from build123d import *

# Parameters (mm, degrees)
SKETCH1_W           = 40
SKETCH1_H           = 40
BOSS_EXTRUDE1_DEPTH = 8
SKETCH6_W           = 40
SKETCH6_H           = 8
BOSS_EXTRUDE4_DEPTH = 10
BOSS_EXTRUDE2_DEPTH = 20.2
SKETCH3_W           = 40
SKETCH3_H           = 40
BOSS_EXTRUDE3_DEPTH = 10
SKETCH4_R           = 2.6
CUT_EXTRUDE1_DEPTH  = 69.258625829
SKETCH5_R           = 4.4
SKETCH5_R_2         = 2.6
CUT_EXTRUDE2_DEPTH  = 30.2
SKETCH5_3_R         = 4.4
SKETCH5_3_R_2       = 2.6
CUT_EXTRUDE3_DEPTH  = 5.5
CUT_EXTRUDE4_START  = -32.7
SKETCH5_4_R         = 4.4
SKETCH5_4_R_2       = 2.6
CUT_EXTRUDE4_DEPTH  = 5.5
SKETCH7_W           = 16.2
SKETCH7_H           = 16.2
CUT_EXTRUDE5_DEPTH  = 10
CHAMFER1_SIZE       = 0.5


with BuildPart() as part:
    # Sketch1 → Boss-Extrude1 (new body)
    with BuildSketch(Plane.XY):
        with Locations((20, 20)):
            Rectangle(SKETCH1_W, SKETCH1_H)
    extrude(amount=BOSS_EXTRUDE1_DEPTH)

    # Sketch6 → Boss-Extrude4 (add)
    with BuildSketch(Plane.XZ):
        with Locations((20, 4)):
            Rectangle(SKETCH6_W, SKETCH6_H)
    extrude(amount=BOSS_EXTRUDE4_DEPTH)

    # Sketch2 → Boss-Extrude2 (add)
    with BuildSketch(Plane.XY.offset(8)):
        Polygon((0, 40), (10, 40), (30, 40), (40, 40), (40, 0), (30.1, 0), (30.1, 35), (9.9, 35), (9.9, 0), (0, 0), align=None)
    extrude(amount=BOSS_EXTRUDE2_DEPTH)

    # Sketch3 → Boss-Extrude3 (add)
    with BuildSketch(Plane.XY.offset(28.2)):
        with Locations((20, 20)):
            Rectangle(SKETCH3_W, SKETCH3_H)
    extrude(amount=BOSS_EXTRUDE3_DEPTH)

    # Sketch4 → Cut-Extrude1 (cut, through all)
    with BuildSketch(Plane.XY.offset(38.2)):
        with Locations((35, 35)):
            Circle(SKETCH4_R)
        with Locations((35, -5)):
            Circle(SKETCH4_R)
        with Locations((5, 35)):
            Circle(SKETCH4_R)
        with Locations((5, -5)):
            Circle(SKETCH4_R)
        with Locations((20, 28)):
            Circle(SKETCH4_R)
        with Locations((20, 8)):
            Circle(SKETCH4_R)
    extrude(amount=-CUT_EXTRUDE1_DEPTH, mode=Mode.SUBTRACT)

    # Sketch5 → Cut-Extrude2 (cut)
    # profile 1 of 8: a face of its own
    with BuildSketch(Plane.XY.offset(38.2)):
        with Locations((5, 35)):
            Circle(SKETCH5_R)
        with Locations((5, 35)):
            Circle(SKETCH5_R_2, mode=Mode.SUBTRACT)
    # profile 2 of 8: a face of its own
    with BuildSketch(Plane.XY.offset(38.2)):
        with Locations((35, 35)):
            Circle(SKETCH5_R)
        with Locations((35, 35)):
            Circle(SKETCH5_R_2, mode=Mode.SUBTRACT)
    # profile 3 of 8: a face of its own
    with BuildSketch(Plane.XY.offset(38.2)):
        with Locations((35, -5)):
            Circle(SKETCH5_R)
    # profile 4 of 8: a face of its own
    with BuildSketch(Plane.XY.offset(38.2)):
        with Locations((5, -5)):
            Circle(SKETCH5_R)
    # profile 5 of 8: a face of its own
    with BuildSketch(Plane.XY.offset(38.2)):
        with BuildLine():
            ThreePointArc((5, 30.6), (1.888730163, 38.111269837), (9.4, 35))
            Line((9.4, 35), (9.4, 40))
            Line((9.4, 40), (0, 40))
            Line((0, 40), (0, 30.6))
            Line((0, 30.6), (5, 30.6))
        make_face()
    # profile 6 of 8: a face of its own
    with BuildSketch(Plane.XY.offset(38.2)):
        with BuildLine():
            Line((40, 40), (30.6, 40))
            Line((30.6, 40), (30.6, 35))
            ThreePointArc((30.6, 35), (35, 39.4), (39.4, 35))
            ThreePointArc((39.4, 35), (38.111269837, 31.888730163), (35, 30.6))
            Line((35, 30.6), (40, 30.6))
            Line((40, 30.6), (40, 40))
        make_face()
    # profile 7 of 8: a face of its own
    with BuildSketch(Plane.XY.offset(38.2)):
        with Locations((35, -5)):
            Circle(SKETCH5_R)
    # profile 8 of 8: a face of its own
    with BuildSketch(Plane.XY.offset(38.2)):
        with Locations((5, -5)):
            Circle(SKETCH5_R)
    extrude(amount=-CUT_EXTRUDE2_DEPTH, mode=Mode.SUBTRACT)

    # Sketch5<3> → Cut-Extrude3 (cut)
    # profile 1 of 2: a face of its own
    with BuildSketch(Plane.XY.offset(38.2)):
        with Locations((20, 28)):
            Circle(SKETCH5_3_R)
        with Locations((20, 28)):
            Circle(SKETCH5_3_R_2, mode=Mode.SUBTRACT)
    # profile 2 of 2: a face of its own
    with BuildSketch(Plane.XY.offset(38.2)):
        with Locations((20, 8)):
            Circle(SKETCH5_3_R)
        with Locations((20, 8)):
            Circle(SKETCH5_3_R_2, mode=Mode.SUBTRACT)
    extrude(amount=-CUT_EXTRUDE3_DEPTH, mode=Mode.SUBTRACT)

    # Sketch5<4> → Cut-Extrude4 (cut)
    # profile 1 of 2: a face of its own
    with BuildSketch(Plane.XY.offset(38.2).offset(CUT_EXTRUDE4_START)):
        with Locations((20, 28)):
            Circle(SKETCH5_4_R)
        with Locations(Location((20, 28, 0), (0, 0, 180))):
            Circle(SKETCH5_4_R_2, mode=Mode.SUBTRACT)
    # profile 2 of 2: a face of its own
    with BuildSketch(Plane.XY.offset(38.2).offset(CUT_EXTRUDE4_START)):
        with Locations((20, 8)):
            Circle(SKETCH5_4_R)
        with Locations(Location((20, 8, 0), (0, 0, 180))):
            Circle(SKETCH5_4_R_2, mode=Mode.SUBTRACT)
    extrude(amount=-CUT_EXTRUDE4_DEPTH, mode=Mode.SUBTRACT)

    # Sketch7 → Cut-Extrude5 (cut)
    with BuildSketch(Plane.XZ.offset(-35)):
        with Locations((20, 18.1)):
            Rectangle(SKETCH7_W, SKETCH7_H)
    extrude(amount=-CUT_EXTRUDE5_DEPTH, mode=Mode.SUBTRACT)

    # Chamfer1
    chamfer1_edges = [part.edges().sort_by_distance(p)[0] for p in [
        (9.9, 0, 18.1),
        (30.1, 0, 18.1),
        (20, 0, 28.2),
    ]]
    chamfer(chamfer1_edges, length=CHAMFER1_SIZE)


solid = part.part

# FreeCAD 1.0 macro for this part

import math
import FreeCAD as App
import Part
import Sketcher
from FreeCAD import Vector


def edges_at(feature, points):
    """Names of the edges that pass closest to the given points."""
    edges = feature.Shape.Edges
    near = lambda p: min(range(len(edges)), key=lambda i: edges[i].distToShape(Part.Vertex(*p))[0])
    return sorted({f"Edge{near(p) + 1}" for p in points})

doc = App.newDocument("Part")
params = doc.addObject("Spreadsheet::Sheet", "Params")
for row, (alias, value) in enumerate([
    ("sketch1_width", "40 mm"),
    ("pad1_length", "8 mm"),
    ("sketch2_width", "40 mm"),
    ("sketch2_height", "8 mm"),
    ("pad2_length", "10 mm"),
    ("sketch3_width", "40 mm"),
    ("sketch3_height", "35 mm"),
    ("sketch3_width2", "9.9 mm"),
    ("pad3_length", "20.2 mm"),
    ("sketch4_width", "40 mm"),
    ("pad4_length", "10 mm"),
    ("sketch5_diameter", "5.2 mm"),
    ("sketch6_diameter", "5.2 mm"),
    ("sketch6_diameter2", "8.8 mm"),
    ("sketch6_width", "5 mm"),
    ("pocket2_length", "30.2 mm"),
    ("sketch7_diameter", "8.8 mm"),
    ("sketch7_diameter2", "5.2 mm"),
    ("pocket3_length", "5.5 mm"),
    ("sketch8_diameter", "8.8 mm"),
    ("sketch8_diameter2", "5.2 mm"),
    ("pocket4_length", "5.5 mm"),
    ("sketch9_width", "16.2 mm"),
    ("pocket5_length", "10 mm"),
    ("chamfer_size", "0.5 mm"),
], start=1):
    params.set(f"A{row}", alias)
    params.set(f"B{row}", "=" + value)
    params.setAlias(f"B{row}", alias)

body = doc.addObject("PartDesign::Body", "Body")

# Sketch on XY plane
sketch1 = doc.addObject("Sketcher::SketchObject", "Sketch")
body.addObject(sketch1)
sketch1.AttachmentSupport = (doc.XY_Plane, [""])
sketch1.MapMode = "FlatFace"
sketch1.addGeometry(Part.LineSegment(Vector(0, 40, 0), Vector(0, 0, 0)), False)
sketch1.addGeometry(Part.LineSegment(Vector(0, 0, 0), Vector(40, 0, 0)), False)
sketch1.addGeometry(Part.LineSegment(Vector(40, 0, 0), Vector(40, 40, 0)), False)
sketch1.addGeometry(Part.LineSegment(Vector(40, 40, 0), Vector(0, 40, 0)), False)
sketch1.addConstraint(Sketcher.Constraint("Coincident", 0, 2, 1, 1))
sketch1.addConstraint(Sketcher.Constraint("Coincident", 1, 2, 2, 1))
sketch1.addConstraint(Sketcher.Constraint("Coincident", 2, 2, 3, 1))
sketch1.addConstraint(Sketcher.Constraint("Coincident", 3, 2, 0, 1))
sketch1.addConstraint(Sketcher.Constraint("Vertical", 0))
sketch1.addConstraint(Sketcher.Constraint("Horizontal", 1))
sketch1.addConstraint(Sketcher.Constraint("Vertical", 2))
sketch1.addConstraint(Sketcher.Constraint("Horizontal", 3))
sketch1.addConstraint(Sketcher.Constraint("Coincident", 0, 2, -1, 1))
sketch1.addConstraint(Sketcher.Constraint("Equal", 3, 0))
sketch1.addConstraint(Sketcher.Constraint("DistanceX", 1, 1, 1, 2, 40.0))
sketch1.setExpression("Constraints[10]", "Params.sketch1_width")
pad1 = doc.addObject("PartDesign::Pad", "Pad")
body.addObject(pad1)
pad1.Profile = sketch1
pad1.setExpression("Length", "Params.pad1_length")

# Sketch on XZ plane
sketch2 = doc.addObject("Sketcher::SketchObject", "Sketch001")
body.addObject(sketch2)
sketch2.AttachmentSupport = (doc.XZ_Plane, [""])
sketch2.MapMode = "FlatFace"
sketch2.addGeometry(Part.LineSegment(Vector(0, 8, 0), Vector(0, 0, 0)), False)
sketch2.addGeometry(Part.LineSegment(Vector(0, 0, 0), Vector(40, 0, 0)), False)
sketch2.addGeometry(Part.LineSegment(Vector(40, 0, 0), Vector(40, 8, 0)), False)
sketch2.addGeometry(Part.LineSegment(Vector(40, 8, 0), Vector(0, 8, 0)), False)
sketch2.addConstraint(Sketcher.Constraint("Coincident", 0, 2, 1, 1))
sketch2.addConstraint(Sketcher.Constraint("Coincident", 1, 2, 2, 1))
sketch2.addConstraint(Sketcher.Constraint("Coincident", 2, 2, 3, 1))
sketch2.addConstraint(Sketcher.Constraint("Coincident", 3, 2, 0, 1))
sketch2.addConstraint(Sketcher.Constraint("Vertical", 0))
sketch2.addConstraint(Sketcher.Constraint("Horizontal", 1))
sketch2.addConstraint(Sketcher.Constraint("Vertical", 2))
sketch2.addConstraint(Sketcher.Constraint("Horizontal", 3))
sketch2.addConstraint(Sketcher.Constraint("Coincident", 0, 2, -1, 1))
sketch2.addConstraint(Sketcher.Constraint("DistanceX", 1, 1, 1, 2, 40.0))
sketch2.addConstraint(Sketcher.Constraint("DistanceY", 0, 2, 0, 1, 8.0))
sketch2.setExpression("Constraints[9]", "Params.sketch2_width")
sketch2.setExpression("Constraints[10]", "Params.sketch2_height")
pad2 = doc.addObject("PartDesign::Pad", "Pad001")
body.addObject(pad2)
pad2.Profile = sketch2
pad2.setExpression("Length", "Params.pad2_length")

# Sketch on XY plane
sketch3 = doc.addObject("Sketcher::SketchObject", "Sketch002")
body.addObject(sketch3)
sketch3.AttachmentSupport = (doc.XY_Plane, [""])
sketch3.MapMode = "FlatFace"
sketch3.AttachmentOffset = App.Placement(Vector(0, 0, 8), App.Rotation())
sketch3.addGeometry(Part.LineSegment(Vector(40, 40, 0), Vector(0, 40, 0)), False)
sketch3.addGeometry(Part.LineSegment(Vector(0, 40, 0), Vector(0, 0, 0)), False)
sketch3.addGeometry(Part.LineSegment(Vector(0, 0, 0), Vector(10, 0, 0)), False)
sketch3.addGeometry(Part.LineSegment(Vector(10, 0, 0), Vector(10, 35, 0)), False)
sketch3.addGeometry(Part.LineSegment(Vector(10, 35, 0), Vector(30, 35, 0)), False)
sketch3.addGeometry(Part.LineSegment(Vector(30, 35, 0), Vector(30, 0, 0)), False)
sketch3.addGeometry(Part.LineSegment(Vector(30, 0, 0), Vector(40, 0, 0)), False)
sketch3.addGeometry(Part.LineSegment(Vector(40, 0, 0), Vector(40, 40, 0)), False)
sketch3.addConstraint(Sketcher.Constraint("Coincident", 0, 2, 1, 1))
sketch3.addConstraint(Sketcher.Constraint("Coincident", 1, 2, 2, 1))
sketch3.addConstraint(Sketcher.Constraint("Coincident", 2, 2, 3, 1))
sketch3.addConstraint(Sketcher.Constraint("Coincident", 3, 2, 4, 1))
sketch3.addConstraint(Sketcher.Constraint("Coincident", 4, 2, 5, 1))
sketch3.addConstraint(Sketcher.Constraint("Coincident", 5, 2, 6, 1))
sketch3.addConstraint(Sketcher.Constraint("Coincident", 6, 2, 7, 1))
sketch3.addConstraint(Sketcher.Constraint("Coincident", 7, 2, 0, 1))
sketch3.addConstraint(Sketcher.Constraint("Horizontal", 0))
sketch3.addConstraint(Sketcher.Constraint("Vertical", 1))
sketch3.addConstraint(Sketcher.Constraint("Horizontal", 2))
sketch3.addConstraint(Sketcher.Constraint("Vertical", 3))
sketch3.addConstraint(Sketcher.Constraint("Horizontal", 4))
sketch3.addConstraint(Sketcher.Constraint("Vertical", 5))
sketch3.addConstraint(Sketcher.Constraint("Horizontal", 6))
sketch3.addConstraint(Sketcher.Constraint("Vertical", 7))
sketch3.addConstraint(Sketcher.Constraint("Coincident", 1, 2, -1, 1))
sketch3.addConstraint(Sketcher.Constraint("PointOnObject", 5, 2, -1))
sketch3.addConstraint(Sketcher.Constraint("Equal", 2, 6))
sketch3.addConstraint(Sketcher.Constraint("Equal", 0, 1))
sketch3.addConstraint(Sketcher.Constraint("DistanceX", 0, 2, 0, 1, 40.0))
sketch3.addConstraint(Sketcher.Constraint("DistanceY", 3, 1, 3, 2, 35.0))
sketch3.addConstraint(Sketcher.Constraint("DistanceX", 2, 1, 2, 2, 9.9))
sketch3.setExpression("Constraints[20]", "Params.sketch3_width")
sketch3.setExpression("Constraints[21]", "Params.sketch3_height")
sketch3.setExpression("Constraints[22]", "Params.sketch3_width2")
pad3 = doc.addObject("PartDesign::Pad", "Pad002")
body.addObject(pad3)
pad3.Profile = sketch3
pad3.setExpression("Length", "Params.pad3_length")

# Sketch on XY plane
sketch4 = doc.addObject("Sketcher::SketchObject", "Sketch003")
body.addObject(sketch4)
sketch4.AttachmentSupport = (doc.XY_Plane, [""])
sketch4.MapMode = "FlatFace"
sketch4.AttachmentOffset = App.Placement(Vector(0, 0, 28.2), App.Rotation())
sketch4.addGeometry(Part.LineSegment(Vector(0, 40, 0), Vector(0, 0, 0)), False)
sketch4.addGeometry(Part.LineSegment(Vector(0, 0, 0), Vector(40, 0, 0)), False)
sketch4.addGeometry(Part.LineSegment(Vector(40, 0, 0), Vector(40, 40, 0)), False)
sketch4.addGeometry(Part.LineSegment(Vector(40, 40, 0), Vector(0, 40, 0)), False)
sketch4.addConstraint(Sketcher.Constraint("Coincident", 0, 2, 1, 1))
sketch4.addConstraint(Sketcher.Constraint("Coincident", 1, 2, 2, 1))
sketch4.addConstraint(Sketcher.Constraint("Coincident", 2, 2, 3, 1))
sketch4.addConstraint(Sketcher.Constraint("Coincident", 3, 2, 0, 1))
sketch4.addConstraint(Sketcher.Constraint("Vertical", 0))
sketch4.addConstraint(Sketcher.Constraint("Horizontal", 1))
sketch4.addConstraint(Sketcher.Constraint("Vertical", 2))
sketch4.addConstraint(Sketcher.Constraint("Horizontal", 3))
sketch4.addConstraint(Sketcher.Constraint("Coincident", 0, 2, -1, 1))
sketch4.addConstraint(Sketcher.Constraint("Equal", 3, 0))
sketch4.addConstraint(Sketcher.Constraint("DistanceX", 1, 1, 1, 2, 40.0))
sketch4.setExpression("Constraints[10]", "Params.sketch4_width")
pad4 = doc.addObject("PartDesign::Pad", "Pad003")
body.addObject(pad4)
pad4.Profile = sketch4
pad4.setExpression("Length", "Params.pad4_length")

# Sketch on XY plane
sketch5 = doc.addObject("Sketcher::SketchObject", "Sketch004")
body.addObject(sketch5)
sketch5.AttachmentSupport = (doc.XY_Plane, [""])
sketch5.MapMode = "FlatFace"
sketch5.AttachmentOffset = App.Placement(Vector(0, 0, 38.2), App.Rotation())
sketch5.addGeometry(Part.Circle(Vector(35, 35, 0), Vector(0, 0, 1), 2.6), False)
sketch5.addGeometry(Part.Circle(Vector(35, -5, 0), Vector(0, 0, 1), 2.6), False)
sketch5.addGeometry(Part.Circle(Vector(5, 35, 0), Vector(0, 0, 1), 2.6), False)
sketch5.addGeometry(Part.Circle(Vector(5, -5, 0), Vector(0, 0, 1), 2.6), False)
sketch5.addGeometry(Part.Circle(Vector(20, 28, 0), Vector(0, 0, 1), 2.6), False)
sketch5.addGeometry(Part.Circle(Vector(20, 8, 0), Vector(0, 0, 1), 2.6), False)
sketch5.addConstraint(Sketcher.Constraint("Equal", 0, 1))
sketch5.addConstraint(Sketcher.Constraint("Equal", 1, 2))
sketch5.addConstraint(Sketcher.Constraint("Equal", 2, 3))
sketch5.addConstraint(Sketcher.Constraint("Equal", 3, 4))
sketch5.addConstraint(Sketcher.Constraint("Equal", 4, 5))
sketch5.addConstraint(Sketcher.Constraint("Horizontal", 0, 3, 2, 3))
sketch5.addConstraint(Sketcher.Constraint("Horizontal", 1, 3, 3, 3))
sketch5.addConstraint(Sketcher.Constraint("Vertical", 0, 3, 1, 3))
sketch5.addConstraint(Sketcher.Constraint("Vertical", 2, 3, 3, 3))
sketch5.addConstraint(Sketcher.Constraint("Vertical", 4, 3, 5, 3))
sketch5.addConstraint(Sketcher.Constraint("Diameter", 0, 5.2))
sketch5.addConstraint(Sketcher.Constraint("DistanceX", -1, 1, 0, 3, 35.0))
sketch5.addConstraint(Sketcher.Constraint("DistanceY", -1, 1, 0, 3, 35.0))
sketch5.addConstraint(Sketcher.Constraint("DistanceY", 1, 3, -1, 1, 5.0))
sketch5.addConstraint(Sketcher.Constraint("DistanceX", -1, 1, 2, 3, 5.0))
sketch5.addConstraint(Sketcher.Constraint("DistanceX", -1, 1, 4, 3, 20.0))
sketch5.addConstraint(Sketcher.Constraint("DistanceY", -1, 1, 4, 3, 28.0))
sketch5.addConstraint(Sketcher.Constraint("DistanceY", -1, 1, 5, 3, 8.0))
sketch5.setExpression("Constraints[10]", "Params.sketch5_diameter")
pocket1 = doc.addObject("PartDesign::Pocket", "Pocket")
body.addObject(pocket1)
pocket1.Profile = sketch5
pocket1.Type = "ThroughAll"

# Sketch on XY plane
sketch6 = doc.addObject("Sketcher::SketchObject", "Sketch005")
body.addObject(sketch6)
sketch6.AttachmentSupport = (doc.XY_Plane, [""])
sketch6.MapMode = "FlatFace"
sketch6.AttachmentOffset = App.Placement(Vector(0, 0, 38.2), App.Rotation())
sketch6.addGeometry(Part.ArcOfCircle(Part.Circle(Vector(5, 35, 0), Vector(0, 0, 1), 4.4), math.radians(-90), math.radians(0)), False)
sketch6.addGeometry(Part.LineSegment(Vector(9.4, 35, 0), Vector(9.4, 40, 0)), False)
sketch6.addGeometry(Part.LineSegment(Vector(9.4, 40, 0), Vector(0, 40, 0)), False)
sketch6.addGeometry(Part.LineSegment(Vector(0, 40, 0), Vector(0, 30.6, 0)), False)
sketch6.addGeometry(Part.LineSegment(Vector(0, 30.6, 0), Vector(5, 30.6, 0)), False)
sketch6.addGeometry(Part.Circle(Vector(5, 35, 0), Vector(0, 0, 1), 2.6), False)
sketch6.addGeometry(Part.ArcOfCircle(Part.Circle(Vector(35, 35, 0), Vector(0, 0, 1), 4.4), math.radians(180), math.radians(270)), False)
sketch6.addGeometry(Part.LineSegment(Vector(35, 30.6, 0), Vector(40, 30.6, 0)), False)
sketch6.addGeometry(Part.LineSegment(Vector(40, 30.6, 0), Vector(40, 40, 0)), False)
sketch6.addGeometry(Part.LineSegment(Vector(40, 40, 0), Vector(30.6, 40, 0)), False)
sketch6.addGeometry(Part.LineSegment(Vector(30.6, 40, 0), Vector(30.6, 35, 0)), False)
sketch6.addGeometry(Part.Circle(Vector(35, 35, 0), Vector(0, 0, 1), 2.6), False)
sketch6.addGeometry(Part.Circle(Vector(35, -5, 0), Vector(0, 0, 1), 4.4), False)
sketch6.addGeometry(Part.Circle(Vector(5, -5, 0), Vector(0, 0, 1), 4.4), False)
sketch6.addConstraint(Sketcher.Constraint("Tangent", 0, 2, 1, 1))
sketch6.addConstraint(Sketcher.Constraint("Coincident", 1, 2, 2, 1))
sketch6.addConstraint(Sketcher.Constraint("Coincident", 2, 2, 3, 1))
sketch6.addConstraint(Sketcher.Constraint("Coincident", 3, 2, 4, 1))
sketch6.addConstraint(Sketcher.Constraint("Tangent", 4, 2, 0, 1))
sketch6.addConstraint(Sketcher.Constraint("Tangent", 6, 2, 7, 1))
sketch6.addConstraint(Sketcher.Constraint("Coincident", 7, 2, 8, 1))
sketch6.addConstraint(Sketcher.Constraint("Coincident", 8, 2, 9, 1))
sketch6.addConstraint(Sketcher.Constraint("Coincident", 9, 2, 10, 1))
sketch6.addConstraint(Sketcher.Constraint("Tangent", 10, 2, 6, 1))
sketch6.addConstraint(Sketcher.Constraint("Vertical", 1))
sketch6.addConstraint(Sketcher.Constraint("Horizontal", 2))
sketch6.addConstraint(Sketcher.Constraint("Vertical", 3))
sketch6.addConstraint(Sketcher.Constraint("Horizontal", 4))
sketch6.addConstraint(Sketcher.Constraint("Horizontal", 7))
sketch6.addConstraint(Sketcher.Constraint("Vertical", 8))
sketch6.addConstraint(Sketcher.Constraint("Horizontal", 9))
sketch6.addConstraint(Sketcher.Constraint("Vertical", 10))
sketch6.addConstraint(Sketcher.Constraint("Coincident", 5, 3, 0, 3))
sketch6.addConstraint(Sketcher.Constraint("Coincident", 11, 3, 6, 3))
sketch6.addConstraint(Sketcher.Constraint("Equal", 0, 6))
sketch6.addConstraint(Sketcher.Constraint("Equal", 5, 11))
sketch6.addConstraint(Sketcher.Constraint("Equal", 6, 12))
sketch6.addConstraint(Sketcher.Constraint("Equal", 12, 13))
sketch6.addConstraint(Sketcher.Constraint("PointOnObject", 2, 2, -2))
sketch6.addConstraint(Sketcher.Constraint("Horizontal", 5, 3, 6, 3))
sketch6.addConstraint(Sketcher.Constraint("Horizontal", 12, 3, 13, 3))
sketch6.addConstraint(Sketcher.Constraint("Horizontal", 2, 2, 8, 2))
sketch6.addConstraint(Sketcher.Constraint("Vertical", 11, 3, 12, 3))
sketch6.addConstraint(Sketcher.Constraint("Vertical", 5, 3, 13, 3))
sketch6.addConstraint(Sketcher.Constraint("Equal", 4, 7))
sketch6.addConstraint(Sketcher.Constraint("Equal", 7, 1))
sketch6.addConstraint(Sketcher.Constraint("Diameter", 5, 5.2))
sketch6.addConstraint(Sketcher.Constraint("Diameter", 12, 8.8))
sketch6.addConstraint(Sketcher.Constraint("DistanceX", 4, 1, 4, 2, 5.0))
sketch6.addConstraint(Sketcher.Constraint("DistanceY", -1, 1, 0, 3, 35.0))
sketch6.addConstraint(Sketcher.Constraint("DistanceX", -1, 1, 6, 3, 35.0))
sketch6.addConstraint(Sketcher.Constraint("DistanceY", 12, 3, -1, 1, 5.0))
sketch6.setExpression("Constraints[32]", "Params.sketch6_diameter")
sketch6.setExpression("Constraints[33]", "Params.sketch6_diameter2")
sketch6.setExpression("Constraints[34]", "Params.sketch6_width")
pocket2 = doc.addObject("PartDesign::Pocket", "Pocket001")
body.addObject(pocket2)
pocket2.Profile = sketch6
pocket2.setExpression("Length", "Params.pocket2_length")

# Sketch on XY plane
sketch7 = doc.addObject("Sketcher::SketchObject", "Sketch006")
body.addObject(sketch7)
sketch7.AttachmentSupport = (doc.XY_Plane, [""])
sketch7.MapMode = "FlatFace"
sketch7.AttachmentOffset = App.Placement(Vector(0, 0, 38.2), App.Rotation())
sketch7.addGeometry(Part.Circle(Vector(20, 28, 0), Vector(0, 0, 1), 4.4), False)
sketch7.addGeometry(Part.Circle(Vector(20, 28, 0), Vector(0, 0, 1), 2.6), False)
sketch7.addGeometry(Part.Circle(Vector(20, 8, 0), Vector(0, 0, 1), 4.4), False)
sketch7.addGeometry(Part.Circle(Vector(20, 8, 0), Vector(0, 0, 1), 2.6), False)
sketch7.addConstraint(Sketcher.Constraint("Coincident", 1, 3, 0, 3))
sketch7.addConstraint(Sketcher.Constraint("Coincident", 3, 3, 2, 3))
sketch7.addConstraint(Sketcher.Constraint("Equal", 0, 2))
sketch7.addConstraint(Sketcher.Constraint("Equal", 1, 3))
sketch7.addConstraint(Sketcher.Constraint("Vertical", 1, 3, 2, 3))
sketch7.addConstraint(Sketcher.Constraint("Diameter", 0, 8.8))
sketch7.addConstraint(Sketcher.Constraint("Diameter", 1, 5.2))
sketch7.addConstraint(Sketcher.Constraint("DistanceX", -1, 1, 0, 3, 20.0))
sketch7.addConstraint(Sketcher.Constraint("DistanceY", -1, 1, 0, 3, 28.0))
sketch7.addConstraint(Sketcher.Constraint("DistanceY", -1, 1, 2, 3, 8.0))
sketch7.setExpression("Constraints[5]", "Params.sketch7_diameter")
sketch7.setExpression("Constraints[6]", "Params.sketch7_diameter2")
pocket3 = doc.addObject("PartDesign::Pocket", "Pocket002")
body.addObject(pocket3)
pocket3.Profile = sketch7
pocket3.setExpression("Length", "Params.pocket3_length")

# Sketch on XY plane
sketch8 = doc.addObject("Sketcher::SketchObject", "Sketch007")
body.addObject(sketch8)
sketch8.AttachmentSupport = (doc.XY_Plane, [""])
sketch8.MapMode = "FlatFace"
sketch8.AttachmentOffset = App.Placement(Vector(0, 0, 5.5), App.Rotation())
sketch8.addGeometry(Part.Circle(Vector(20, 28, 0), Vector(0, 0, 1), 4.4), False)
sketch8.addGeometry(Part.Circle(Vector(20, 28, 0), Vector(0, 0, 1), 2.6), False)
sketch8.addGeometry(Part.Circle(Vector(20, 8, 0), Vector(0, 0, 1), 4.4), False)
sketch8.addGeometry(Part.Circle(Vector(20, 8, 0), Vector(0, 0, 1), 2.6), False)
sketch8.addConstraint(Sketcher.Constraint("Coincident", 1, 3, 0, 3))
sketch8.addConstraint(Sketcher.Constraint("Coincident", 3, 3, 2, 3))
sketch8.addConstraint(Sketcher.Constraint("Equal", 0, 2))
sketch8.addConstraint(Sketcher.Constraint("Equal", 1, 3))
sketch8.addConstraint(Sketcher.Constraint("Vertical", 1, 3, 2, 3))
sketch8.addConstraint(Sketcher.Constraint("Diameter", 0, 8.8))
sketch8.addConstraint(Sketcher.Constraint("Diameter", 1, 5.2))
sketch8.addConstraint(Sketcher.Constraint("DistanceX", -1, 1, 0, 3, 20.0))
sketch8.addConstraint(Sketcher.Constraint("DistanceY", -1, 1, 0, 3, 28.0))
sketch8.addConstraint(Sketcher.Constraint("DistanceY", -1, 1, 2, 3, 8.0))
sketch8.setExpression("Constraints[5]", "Params.sketch8_diameter")
sketch8.setExpression("Constraints[6]", "Params.sketch8_diameter2")
pocket4 = doc.addObject("PartDesign::Pocket", "Pocket003")
body.addObject(pocket4)
pocket4.Profile = sketch8
pocket4.setExpression("Length", "Params.pocket4_length")

# Sketch on XZ plane
sketch9 = doc.addObject("Sketcher::SketchObject", "Sketch008")
body.addObject(sketch9)
sketch9.AttachmentSupport = (doc.XZ_Plane, [""])
sketch9.MapMode = "FlatFace"
sketch9.AttachmentOffset = App.Placement(Vector(0, 0, -35), App.Rotation())
sketch9.addGeometry(Part.LineSegment(Vector(12, 26, 0), Vector(12, 10, 0)), False)
sketch9.addGeometry(Part.LineSegment(Vector(12, 10, 0), Vector(28, 10, 0)), False)
sketch9.addGeometry(Part.LineSegment(Vector(28, 10, 0), Vector(28, 26, 0)), False)
sketch9.addGeometry(Part.LineSegment(Vector(28, 26, 0), Vector(12, 26, 0)), False)
sketch9.addConstraint(Sketcher.Constraint("Coincident", 0, 2, 1, 1))
sketch9.addConstraint(Sketcher.Constraint("Coincident", 1, 2, 2, 1))
sketch9.addConstraint(Sketcher.Constraint("Coincident", 2, 2, 3, 1))
sketch9.addConstraint(Sketcher.Constraint("Coincident", 3, 2, 0, 1))
sketch9.addConstraint(Sketcher.Constraint("Vertical", 0))
sketch9.addConstraint(Sketcher.Constraint("Horizontal", 1))
sketch9.addConstraint(Sketcher.Constraint("Vertical", 2))
sketch9.addConstraint(Sketcher.Constraint("Horizontal", 3))
sketch9.addConstraint(Sketcher.Constraint("Equal", 3, 0))
sketch9.addConstraint(Sketcher.Constraint("DistanceX", 1, 1, 1, 2, 16.2))
sketch9.addConstraint(Sketcher.Constraint("DistanceY", -1, 1, 0, 2, 10.0))
sketch9.addConstraint(Sketcher.Constraint("DistanceX", -1, 1, 0, 2, 11.9))
sketch9.setExpression("Constraints[9]", "Params.sketch9_width")
pocket5 = doc.addObject("PartDesign::Pocket", "Pocket004")
body.addObject(pocket5)
pocket5.Profile = sketch9
pocket5.setExpression("Length", "Params.pocket5_length")
doc.recompute()

chamfer = doc.addObject("PartDesign::Chamfer", "Chamfer")
body.addObject(chamfer)
chamfer.Base = (pocket5, edges_at(pocket5, [(9.9, 0, 18.1), (30.1, 0, 18.1), (20, 0, 28.2)]))
chamfer.setExpression("Size", "Params.chamfer_size")

doc.recompute()
